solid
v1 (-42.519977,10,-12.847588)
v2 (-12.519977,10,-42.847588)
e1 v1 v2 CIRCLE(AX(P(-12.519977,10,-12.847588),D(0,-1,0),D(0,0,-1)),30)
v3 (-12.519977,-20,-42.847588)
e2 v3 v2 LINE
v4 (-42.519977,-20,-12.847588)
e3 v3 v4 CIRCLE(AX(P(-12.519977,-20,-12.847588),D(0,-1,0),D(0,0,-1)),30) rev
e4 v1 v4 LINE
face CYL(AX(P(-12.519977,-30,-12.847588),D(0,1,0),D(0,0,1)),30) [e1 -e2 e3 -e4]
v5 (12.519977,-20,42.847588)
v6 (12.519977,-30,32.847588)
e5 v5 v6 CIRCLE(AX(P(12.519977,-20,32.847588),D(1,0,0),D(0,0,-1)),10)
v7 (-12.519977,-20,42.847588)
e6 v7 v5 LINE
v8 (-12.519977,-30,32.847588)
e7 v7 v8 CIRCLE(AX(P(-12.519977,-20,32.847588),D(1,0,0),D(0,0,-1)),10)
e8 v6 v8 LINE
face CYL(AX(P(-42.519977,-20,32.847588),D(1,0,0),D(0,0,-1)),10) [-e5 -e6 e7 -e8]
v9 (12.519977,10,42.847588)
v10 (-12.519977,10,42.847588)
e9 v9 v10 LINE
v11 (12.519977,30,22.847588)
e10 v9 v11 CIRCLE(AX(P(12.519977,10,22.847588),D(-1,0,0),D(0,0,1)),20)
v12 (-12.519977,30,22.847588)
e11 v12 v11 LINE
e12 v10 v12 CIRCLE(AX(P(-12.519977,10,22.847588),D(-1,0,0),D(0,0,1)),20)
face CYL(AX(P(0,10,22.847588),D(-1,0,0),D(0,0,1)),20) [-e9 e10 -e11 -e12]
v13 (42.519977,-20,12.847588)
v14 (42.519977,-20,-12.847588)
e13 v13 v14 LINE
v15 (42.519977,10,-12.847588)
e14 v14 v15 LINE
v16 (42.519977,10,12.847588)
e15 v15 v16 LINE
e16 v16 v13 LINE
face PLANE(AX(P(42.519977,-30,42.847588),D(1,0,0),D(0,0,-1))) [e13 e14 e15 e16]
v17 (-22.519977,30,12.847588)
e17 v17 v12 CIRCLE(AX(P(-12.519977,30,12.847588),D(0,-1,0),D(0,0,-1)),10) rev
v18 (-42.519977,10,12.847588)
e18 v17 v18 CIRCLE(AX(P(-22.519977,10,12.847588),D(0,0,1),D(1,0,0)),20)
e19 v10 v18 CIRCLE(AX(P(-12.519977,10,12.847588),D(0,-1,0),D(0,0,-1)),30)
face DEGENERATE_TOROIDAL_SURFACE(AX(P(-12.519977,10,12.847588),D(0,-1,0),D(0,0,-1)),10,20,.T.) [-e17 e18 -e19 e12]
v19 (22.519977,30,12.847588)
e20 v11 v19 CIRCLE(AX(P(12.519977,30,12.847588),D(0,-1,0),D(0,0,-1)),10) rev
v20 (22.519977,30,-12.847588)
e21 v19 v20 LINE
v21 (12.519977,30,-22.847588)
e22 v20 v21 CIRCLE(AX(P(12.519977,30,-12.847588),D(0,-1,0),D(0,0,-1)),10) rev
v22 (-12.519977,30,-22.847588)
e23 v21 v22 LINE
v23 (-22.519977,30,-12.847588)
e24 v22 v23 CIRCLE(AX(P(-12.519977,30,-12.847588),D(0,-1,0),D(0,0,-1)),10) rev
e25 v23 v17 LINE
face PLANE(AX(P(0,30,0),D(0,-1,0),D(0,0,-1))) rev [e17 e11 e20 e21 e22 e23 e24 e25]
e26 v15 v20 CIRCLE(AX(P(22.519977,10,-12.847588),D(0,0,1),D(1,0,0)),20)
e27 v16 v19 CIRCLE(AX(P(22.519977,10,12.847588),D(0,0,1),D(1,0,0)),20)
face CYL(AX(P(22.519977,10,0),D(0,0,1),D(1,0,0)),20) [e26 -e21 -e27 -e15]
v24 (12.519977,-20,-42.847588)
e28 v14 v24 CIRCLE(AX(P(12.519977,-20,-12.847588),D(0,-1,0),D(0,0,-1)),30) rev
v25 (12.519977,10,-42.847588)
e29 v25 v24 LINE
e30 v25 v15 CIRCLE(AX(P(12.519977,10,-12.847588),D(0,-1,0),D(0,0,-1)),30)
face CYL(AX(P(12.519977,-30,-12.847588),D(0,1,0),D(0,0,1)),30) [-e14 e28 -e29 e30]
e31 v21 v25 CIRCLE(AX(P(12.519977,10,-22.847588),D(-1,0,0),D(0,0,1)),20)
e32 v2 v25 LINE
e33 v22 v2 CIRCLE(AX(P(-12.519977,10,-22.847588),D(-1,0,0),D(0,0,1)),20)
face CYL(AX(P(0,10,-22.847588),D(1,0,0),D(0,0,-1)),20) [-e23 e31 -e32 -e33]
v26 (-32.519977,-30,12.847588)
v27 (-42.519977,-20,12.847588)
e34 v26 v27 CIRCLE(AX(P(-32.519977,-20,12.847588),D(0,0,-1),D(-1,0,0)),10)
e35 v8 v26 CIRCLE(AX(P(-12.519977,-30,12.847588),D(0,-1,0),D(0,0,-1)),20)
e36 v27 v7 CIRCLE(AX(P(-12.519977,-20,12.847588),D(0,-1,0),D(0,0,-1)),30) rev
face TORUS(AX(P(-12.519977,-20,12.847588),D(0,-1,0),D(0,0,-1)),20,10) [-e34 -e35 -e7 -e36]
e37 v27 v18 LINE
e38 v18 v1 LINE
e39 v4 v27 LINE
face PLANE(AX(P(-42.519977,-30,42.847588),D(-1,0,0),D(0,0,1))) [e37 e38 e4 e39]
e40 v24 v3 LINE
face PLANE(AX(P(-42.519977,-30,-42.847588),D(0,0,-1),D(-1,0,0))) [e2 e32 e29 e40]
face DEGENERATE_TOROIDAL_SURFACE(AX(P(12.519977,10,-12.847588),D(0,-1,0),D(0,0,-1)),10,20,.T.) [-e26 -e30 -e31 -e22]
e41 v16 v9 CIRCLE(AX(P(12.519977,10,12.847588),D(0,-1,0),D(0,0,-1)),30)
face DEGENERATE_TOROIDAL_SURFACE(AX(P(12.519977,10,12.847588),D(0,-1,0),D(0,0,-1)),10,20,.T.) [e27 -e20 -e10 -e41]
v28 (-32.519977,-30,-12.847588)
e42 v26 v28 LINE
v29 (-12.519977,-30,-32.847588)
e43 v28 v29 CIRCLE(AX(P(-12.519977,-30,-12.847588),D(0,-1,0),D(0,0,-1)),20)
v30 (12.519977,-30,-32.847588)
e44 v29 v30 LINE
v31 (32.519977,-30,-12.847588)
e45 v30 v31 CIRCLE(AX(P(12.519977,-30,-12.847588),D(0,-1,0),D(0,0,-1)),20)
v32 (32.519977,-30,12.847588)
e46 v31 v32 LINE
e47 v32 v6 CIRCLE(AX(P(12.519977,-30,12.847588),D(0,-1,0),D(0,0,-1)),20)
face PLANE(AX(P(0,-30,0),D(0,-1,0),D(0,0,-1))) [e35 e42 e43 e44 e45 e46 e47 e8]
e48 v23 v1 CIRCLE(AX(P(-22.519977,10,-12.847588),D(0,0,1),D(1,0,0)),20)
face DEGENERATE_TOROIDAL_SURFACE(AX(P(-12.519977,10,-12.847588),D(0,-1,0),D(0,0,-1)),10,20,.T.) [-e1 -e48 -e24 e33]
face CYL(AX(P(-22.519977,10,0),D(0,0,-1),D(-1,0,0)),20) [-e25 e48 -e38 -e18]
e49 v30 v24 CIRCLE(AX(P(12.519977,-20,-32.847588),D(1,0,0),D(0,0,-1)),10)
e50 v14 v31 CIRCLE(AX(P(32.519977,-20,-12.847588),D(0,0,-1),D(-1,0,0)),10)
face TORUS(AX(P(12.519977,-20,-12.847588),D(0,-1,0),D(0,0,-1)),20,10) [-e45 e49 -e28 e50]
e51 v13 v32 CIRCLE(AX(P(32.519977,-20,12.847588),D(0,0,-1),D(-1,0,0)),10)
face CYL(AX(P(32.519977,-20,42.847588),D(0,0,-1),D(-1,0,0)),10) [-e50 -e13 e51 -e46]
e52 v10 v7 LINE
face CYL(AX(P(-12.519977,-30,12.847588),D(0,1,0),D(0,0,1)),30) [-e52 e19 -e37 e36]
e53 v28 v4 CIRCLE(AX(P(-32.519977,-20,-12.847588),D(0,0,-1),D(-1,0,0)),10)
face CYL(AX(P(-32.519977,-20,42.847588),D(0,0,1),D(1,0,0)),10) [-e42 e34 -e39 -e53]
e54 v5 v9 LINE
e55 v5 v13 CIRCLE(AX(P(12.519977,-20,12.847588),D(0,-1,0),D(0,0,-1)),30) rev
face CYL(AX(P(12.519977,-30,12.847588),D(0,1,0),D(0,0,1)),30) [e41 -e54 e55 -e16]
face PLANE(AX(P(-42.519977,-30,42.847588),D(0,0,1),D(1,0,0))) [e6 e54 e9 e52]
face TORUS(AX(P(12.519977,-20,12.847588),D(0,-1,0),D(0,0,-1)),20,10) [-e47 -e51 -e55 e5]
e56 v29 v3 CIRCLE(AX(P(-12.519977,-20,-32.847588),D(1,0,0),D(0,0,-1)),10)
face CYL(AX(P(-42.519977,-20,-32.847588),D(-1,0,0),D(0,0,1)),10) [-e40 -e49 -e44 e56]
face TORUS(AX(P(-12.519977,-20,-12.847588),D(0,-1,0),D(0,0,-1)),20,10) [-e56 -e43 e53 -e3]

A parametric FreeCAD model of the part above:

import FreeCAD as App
import Part
import Sketcher

V = App.Vector
Q = App.Units.Quantity


def edges_at(feature, points):
    """Names of the edges that pass closest to the given points."""
    edges = feature.Shape.Edges
    near = lambda p: min(range(len(edges)), key=lambda i: edges[i].distToShape(Part.Vertex(*p))[0])
    return sorted({f"Edge{near(p) + 1}" for p in points})


def add_polygon(sketch, points):
    """Adds a closed chain of lines whose ends are joined by coincident constraints."""
    first, n = sketch.GeometryCount, len(points)
    for a, b in zip(points, points[1:] + points[:1]):
        sketch.addGeometry(Part.LineSegment(App.Vector(*a, 0), App.Vector(*b, 0)), False)
    for i in range(n):
        sketch.addConstraint(Sketcher.Constraint("Coincident", first + i, 2, first + (i + 1) % n, 1))

doc = App.newDocument("Part")
body = doc.addObject("PartDesign::Body", "Body")

sketch1 = body.newObject("Sketcher::SketchObject", "Sketch")
sketch1.AttachmentSupport = (doc.getObject("XZ_Plane"), [""])
sketch1.MapMode = "FlatFace"
add_polygon(sketch1, [(-42.519977, -42.847588), (-42.519977, 42.847588), (42.519977, 42.847588), (42.519977, -42.847588)])
sketch1.addConstraint([
    Sketcher.Constraint("Vertical", 0),
    Sketcher.Constraint("Horizontal", 1),
    Sketcher.Constraint("Vertical", 2),
    Sketcher.Constraint("Horizontal", 3),
    Sketcher.Constraint("Symmetric", 0, 2, 2, 2, -1, 1),
    Sketcher.Constraint("DistanceX", 1, 1, 1, 2, Q("85.039953 mm")),
    Sketcher.Constraint("DistanceY", 0, 1, 0, 2, Q("85.695176 mm")),
])
pad1 = body.newObject("PartDesign::Pad", "Pad")
pad1.Profile = sketch1
pad1.Type = "TwoLengths"
pad1.Length = 30
pad1.Length2 = 30
pad1.Reversed = True
doc.recompute()

fillet = body.newObject("PartDesign::Fillet", "Fillet")
fillet.Base = (pad1, edges_at(pad1, [
    (42.52, 0, 42.848),
    (-42.52, 0, 42.848),
    (-42.52, 0, -42.848),
    (42.52, 0, -42.848),
]))
fillet.Radius = 30
doc.recompute()

fillet2 = body.newObject("PartDesign::Fillet", "Fillet001")
fillet2.Base = (fillet, edges_at(fillet, [
    (0, 30, 42.848),
    (42.52, 30, 0),
    (0, 30, -42.848),
    (-42.52, 30, 0),
    (-33.733, 30, -34.061),
    (-33.733, 30, 34.061),
    (33.733, 30, -34.061),
    (33.733, 30, 34.061),
]))
fillet2.Radius = 20
doc.recompute()

fillet3 = body.newObject("PartDesign::Fillet", "Fillet002")
fillet3.Base = (fillet2, edges_at(fillet2, [
    (0, -30, 42.848),
    (42.52, -30, 0),
    (-42.52, -30, 0),
    (0, -30, -42.848),
    (-33.733, -30, -34.061),
    (-33.733, -30, 34.061),
    (33.733, -30, -34.061),
    (33.733, -30, 34.061),
]))
fillet3.Radius = 10

doc.recompute()
